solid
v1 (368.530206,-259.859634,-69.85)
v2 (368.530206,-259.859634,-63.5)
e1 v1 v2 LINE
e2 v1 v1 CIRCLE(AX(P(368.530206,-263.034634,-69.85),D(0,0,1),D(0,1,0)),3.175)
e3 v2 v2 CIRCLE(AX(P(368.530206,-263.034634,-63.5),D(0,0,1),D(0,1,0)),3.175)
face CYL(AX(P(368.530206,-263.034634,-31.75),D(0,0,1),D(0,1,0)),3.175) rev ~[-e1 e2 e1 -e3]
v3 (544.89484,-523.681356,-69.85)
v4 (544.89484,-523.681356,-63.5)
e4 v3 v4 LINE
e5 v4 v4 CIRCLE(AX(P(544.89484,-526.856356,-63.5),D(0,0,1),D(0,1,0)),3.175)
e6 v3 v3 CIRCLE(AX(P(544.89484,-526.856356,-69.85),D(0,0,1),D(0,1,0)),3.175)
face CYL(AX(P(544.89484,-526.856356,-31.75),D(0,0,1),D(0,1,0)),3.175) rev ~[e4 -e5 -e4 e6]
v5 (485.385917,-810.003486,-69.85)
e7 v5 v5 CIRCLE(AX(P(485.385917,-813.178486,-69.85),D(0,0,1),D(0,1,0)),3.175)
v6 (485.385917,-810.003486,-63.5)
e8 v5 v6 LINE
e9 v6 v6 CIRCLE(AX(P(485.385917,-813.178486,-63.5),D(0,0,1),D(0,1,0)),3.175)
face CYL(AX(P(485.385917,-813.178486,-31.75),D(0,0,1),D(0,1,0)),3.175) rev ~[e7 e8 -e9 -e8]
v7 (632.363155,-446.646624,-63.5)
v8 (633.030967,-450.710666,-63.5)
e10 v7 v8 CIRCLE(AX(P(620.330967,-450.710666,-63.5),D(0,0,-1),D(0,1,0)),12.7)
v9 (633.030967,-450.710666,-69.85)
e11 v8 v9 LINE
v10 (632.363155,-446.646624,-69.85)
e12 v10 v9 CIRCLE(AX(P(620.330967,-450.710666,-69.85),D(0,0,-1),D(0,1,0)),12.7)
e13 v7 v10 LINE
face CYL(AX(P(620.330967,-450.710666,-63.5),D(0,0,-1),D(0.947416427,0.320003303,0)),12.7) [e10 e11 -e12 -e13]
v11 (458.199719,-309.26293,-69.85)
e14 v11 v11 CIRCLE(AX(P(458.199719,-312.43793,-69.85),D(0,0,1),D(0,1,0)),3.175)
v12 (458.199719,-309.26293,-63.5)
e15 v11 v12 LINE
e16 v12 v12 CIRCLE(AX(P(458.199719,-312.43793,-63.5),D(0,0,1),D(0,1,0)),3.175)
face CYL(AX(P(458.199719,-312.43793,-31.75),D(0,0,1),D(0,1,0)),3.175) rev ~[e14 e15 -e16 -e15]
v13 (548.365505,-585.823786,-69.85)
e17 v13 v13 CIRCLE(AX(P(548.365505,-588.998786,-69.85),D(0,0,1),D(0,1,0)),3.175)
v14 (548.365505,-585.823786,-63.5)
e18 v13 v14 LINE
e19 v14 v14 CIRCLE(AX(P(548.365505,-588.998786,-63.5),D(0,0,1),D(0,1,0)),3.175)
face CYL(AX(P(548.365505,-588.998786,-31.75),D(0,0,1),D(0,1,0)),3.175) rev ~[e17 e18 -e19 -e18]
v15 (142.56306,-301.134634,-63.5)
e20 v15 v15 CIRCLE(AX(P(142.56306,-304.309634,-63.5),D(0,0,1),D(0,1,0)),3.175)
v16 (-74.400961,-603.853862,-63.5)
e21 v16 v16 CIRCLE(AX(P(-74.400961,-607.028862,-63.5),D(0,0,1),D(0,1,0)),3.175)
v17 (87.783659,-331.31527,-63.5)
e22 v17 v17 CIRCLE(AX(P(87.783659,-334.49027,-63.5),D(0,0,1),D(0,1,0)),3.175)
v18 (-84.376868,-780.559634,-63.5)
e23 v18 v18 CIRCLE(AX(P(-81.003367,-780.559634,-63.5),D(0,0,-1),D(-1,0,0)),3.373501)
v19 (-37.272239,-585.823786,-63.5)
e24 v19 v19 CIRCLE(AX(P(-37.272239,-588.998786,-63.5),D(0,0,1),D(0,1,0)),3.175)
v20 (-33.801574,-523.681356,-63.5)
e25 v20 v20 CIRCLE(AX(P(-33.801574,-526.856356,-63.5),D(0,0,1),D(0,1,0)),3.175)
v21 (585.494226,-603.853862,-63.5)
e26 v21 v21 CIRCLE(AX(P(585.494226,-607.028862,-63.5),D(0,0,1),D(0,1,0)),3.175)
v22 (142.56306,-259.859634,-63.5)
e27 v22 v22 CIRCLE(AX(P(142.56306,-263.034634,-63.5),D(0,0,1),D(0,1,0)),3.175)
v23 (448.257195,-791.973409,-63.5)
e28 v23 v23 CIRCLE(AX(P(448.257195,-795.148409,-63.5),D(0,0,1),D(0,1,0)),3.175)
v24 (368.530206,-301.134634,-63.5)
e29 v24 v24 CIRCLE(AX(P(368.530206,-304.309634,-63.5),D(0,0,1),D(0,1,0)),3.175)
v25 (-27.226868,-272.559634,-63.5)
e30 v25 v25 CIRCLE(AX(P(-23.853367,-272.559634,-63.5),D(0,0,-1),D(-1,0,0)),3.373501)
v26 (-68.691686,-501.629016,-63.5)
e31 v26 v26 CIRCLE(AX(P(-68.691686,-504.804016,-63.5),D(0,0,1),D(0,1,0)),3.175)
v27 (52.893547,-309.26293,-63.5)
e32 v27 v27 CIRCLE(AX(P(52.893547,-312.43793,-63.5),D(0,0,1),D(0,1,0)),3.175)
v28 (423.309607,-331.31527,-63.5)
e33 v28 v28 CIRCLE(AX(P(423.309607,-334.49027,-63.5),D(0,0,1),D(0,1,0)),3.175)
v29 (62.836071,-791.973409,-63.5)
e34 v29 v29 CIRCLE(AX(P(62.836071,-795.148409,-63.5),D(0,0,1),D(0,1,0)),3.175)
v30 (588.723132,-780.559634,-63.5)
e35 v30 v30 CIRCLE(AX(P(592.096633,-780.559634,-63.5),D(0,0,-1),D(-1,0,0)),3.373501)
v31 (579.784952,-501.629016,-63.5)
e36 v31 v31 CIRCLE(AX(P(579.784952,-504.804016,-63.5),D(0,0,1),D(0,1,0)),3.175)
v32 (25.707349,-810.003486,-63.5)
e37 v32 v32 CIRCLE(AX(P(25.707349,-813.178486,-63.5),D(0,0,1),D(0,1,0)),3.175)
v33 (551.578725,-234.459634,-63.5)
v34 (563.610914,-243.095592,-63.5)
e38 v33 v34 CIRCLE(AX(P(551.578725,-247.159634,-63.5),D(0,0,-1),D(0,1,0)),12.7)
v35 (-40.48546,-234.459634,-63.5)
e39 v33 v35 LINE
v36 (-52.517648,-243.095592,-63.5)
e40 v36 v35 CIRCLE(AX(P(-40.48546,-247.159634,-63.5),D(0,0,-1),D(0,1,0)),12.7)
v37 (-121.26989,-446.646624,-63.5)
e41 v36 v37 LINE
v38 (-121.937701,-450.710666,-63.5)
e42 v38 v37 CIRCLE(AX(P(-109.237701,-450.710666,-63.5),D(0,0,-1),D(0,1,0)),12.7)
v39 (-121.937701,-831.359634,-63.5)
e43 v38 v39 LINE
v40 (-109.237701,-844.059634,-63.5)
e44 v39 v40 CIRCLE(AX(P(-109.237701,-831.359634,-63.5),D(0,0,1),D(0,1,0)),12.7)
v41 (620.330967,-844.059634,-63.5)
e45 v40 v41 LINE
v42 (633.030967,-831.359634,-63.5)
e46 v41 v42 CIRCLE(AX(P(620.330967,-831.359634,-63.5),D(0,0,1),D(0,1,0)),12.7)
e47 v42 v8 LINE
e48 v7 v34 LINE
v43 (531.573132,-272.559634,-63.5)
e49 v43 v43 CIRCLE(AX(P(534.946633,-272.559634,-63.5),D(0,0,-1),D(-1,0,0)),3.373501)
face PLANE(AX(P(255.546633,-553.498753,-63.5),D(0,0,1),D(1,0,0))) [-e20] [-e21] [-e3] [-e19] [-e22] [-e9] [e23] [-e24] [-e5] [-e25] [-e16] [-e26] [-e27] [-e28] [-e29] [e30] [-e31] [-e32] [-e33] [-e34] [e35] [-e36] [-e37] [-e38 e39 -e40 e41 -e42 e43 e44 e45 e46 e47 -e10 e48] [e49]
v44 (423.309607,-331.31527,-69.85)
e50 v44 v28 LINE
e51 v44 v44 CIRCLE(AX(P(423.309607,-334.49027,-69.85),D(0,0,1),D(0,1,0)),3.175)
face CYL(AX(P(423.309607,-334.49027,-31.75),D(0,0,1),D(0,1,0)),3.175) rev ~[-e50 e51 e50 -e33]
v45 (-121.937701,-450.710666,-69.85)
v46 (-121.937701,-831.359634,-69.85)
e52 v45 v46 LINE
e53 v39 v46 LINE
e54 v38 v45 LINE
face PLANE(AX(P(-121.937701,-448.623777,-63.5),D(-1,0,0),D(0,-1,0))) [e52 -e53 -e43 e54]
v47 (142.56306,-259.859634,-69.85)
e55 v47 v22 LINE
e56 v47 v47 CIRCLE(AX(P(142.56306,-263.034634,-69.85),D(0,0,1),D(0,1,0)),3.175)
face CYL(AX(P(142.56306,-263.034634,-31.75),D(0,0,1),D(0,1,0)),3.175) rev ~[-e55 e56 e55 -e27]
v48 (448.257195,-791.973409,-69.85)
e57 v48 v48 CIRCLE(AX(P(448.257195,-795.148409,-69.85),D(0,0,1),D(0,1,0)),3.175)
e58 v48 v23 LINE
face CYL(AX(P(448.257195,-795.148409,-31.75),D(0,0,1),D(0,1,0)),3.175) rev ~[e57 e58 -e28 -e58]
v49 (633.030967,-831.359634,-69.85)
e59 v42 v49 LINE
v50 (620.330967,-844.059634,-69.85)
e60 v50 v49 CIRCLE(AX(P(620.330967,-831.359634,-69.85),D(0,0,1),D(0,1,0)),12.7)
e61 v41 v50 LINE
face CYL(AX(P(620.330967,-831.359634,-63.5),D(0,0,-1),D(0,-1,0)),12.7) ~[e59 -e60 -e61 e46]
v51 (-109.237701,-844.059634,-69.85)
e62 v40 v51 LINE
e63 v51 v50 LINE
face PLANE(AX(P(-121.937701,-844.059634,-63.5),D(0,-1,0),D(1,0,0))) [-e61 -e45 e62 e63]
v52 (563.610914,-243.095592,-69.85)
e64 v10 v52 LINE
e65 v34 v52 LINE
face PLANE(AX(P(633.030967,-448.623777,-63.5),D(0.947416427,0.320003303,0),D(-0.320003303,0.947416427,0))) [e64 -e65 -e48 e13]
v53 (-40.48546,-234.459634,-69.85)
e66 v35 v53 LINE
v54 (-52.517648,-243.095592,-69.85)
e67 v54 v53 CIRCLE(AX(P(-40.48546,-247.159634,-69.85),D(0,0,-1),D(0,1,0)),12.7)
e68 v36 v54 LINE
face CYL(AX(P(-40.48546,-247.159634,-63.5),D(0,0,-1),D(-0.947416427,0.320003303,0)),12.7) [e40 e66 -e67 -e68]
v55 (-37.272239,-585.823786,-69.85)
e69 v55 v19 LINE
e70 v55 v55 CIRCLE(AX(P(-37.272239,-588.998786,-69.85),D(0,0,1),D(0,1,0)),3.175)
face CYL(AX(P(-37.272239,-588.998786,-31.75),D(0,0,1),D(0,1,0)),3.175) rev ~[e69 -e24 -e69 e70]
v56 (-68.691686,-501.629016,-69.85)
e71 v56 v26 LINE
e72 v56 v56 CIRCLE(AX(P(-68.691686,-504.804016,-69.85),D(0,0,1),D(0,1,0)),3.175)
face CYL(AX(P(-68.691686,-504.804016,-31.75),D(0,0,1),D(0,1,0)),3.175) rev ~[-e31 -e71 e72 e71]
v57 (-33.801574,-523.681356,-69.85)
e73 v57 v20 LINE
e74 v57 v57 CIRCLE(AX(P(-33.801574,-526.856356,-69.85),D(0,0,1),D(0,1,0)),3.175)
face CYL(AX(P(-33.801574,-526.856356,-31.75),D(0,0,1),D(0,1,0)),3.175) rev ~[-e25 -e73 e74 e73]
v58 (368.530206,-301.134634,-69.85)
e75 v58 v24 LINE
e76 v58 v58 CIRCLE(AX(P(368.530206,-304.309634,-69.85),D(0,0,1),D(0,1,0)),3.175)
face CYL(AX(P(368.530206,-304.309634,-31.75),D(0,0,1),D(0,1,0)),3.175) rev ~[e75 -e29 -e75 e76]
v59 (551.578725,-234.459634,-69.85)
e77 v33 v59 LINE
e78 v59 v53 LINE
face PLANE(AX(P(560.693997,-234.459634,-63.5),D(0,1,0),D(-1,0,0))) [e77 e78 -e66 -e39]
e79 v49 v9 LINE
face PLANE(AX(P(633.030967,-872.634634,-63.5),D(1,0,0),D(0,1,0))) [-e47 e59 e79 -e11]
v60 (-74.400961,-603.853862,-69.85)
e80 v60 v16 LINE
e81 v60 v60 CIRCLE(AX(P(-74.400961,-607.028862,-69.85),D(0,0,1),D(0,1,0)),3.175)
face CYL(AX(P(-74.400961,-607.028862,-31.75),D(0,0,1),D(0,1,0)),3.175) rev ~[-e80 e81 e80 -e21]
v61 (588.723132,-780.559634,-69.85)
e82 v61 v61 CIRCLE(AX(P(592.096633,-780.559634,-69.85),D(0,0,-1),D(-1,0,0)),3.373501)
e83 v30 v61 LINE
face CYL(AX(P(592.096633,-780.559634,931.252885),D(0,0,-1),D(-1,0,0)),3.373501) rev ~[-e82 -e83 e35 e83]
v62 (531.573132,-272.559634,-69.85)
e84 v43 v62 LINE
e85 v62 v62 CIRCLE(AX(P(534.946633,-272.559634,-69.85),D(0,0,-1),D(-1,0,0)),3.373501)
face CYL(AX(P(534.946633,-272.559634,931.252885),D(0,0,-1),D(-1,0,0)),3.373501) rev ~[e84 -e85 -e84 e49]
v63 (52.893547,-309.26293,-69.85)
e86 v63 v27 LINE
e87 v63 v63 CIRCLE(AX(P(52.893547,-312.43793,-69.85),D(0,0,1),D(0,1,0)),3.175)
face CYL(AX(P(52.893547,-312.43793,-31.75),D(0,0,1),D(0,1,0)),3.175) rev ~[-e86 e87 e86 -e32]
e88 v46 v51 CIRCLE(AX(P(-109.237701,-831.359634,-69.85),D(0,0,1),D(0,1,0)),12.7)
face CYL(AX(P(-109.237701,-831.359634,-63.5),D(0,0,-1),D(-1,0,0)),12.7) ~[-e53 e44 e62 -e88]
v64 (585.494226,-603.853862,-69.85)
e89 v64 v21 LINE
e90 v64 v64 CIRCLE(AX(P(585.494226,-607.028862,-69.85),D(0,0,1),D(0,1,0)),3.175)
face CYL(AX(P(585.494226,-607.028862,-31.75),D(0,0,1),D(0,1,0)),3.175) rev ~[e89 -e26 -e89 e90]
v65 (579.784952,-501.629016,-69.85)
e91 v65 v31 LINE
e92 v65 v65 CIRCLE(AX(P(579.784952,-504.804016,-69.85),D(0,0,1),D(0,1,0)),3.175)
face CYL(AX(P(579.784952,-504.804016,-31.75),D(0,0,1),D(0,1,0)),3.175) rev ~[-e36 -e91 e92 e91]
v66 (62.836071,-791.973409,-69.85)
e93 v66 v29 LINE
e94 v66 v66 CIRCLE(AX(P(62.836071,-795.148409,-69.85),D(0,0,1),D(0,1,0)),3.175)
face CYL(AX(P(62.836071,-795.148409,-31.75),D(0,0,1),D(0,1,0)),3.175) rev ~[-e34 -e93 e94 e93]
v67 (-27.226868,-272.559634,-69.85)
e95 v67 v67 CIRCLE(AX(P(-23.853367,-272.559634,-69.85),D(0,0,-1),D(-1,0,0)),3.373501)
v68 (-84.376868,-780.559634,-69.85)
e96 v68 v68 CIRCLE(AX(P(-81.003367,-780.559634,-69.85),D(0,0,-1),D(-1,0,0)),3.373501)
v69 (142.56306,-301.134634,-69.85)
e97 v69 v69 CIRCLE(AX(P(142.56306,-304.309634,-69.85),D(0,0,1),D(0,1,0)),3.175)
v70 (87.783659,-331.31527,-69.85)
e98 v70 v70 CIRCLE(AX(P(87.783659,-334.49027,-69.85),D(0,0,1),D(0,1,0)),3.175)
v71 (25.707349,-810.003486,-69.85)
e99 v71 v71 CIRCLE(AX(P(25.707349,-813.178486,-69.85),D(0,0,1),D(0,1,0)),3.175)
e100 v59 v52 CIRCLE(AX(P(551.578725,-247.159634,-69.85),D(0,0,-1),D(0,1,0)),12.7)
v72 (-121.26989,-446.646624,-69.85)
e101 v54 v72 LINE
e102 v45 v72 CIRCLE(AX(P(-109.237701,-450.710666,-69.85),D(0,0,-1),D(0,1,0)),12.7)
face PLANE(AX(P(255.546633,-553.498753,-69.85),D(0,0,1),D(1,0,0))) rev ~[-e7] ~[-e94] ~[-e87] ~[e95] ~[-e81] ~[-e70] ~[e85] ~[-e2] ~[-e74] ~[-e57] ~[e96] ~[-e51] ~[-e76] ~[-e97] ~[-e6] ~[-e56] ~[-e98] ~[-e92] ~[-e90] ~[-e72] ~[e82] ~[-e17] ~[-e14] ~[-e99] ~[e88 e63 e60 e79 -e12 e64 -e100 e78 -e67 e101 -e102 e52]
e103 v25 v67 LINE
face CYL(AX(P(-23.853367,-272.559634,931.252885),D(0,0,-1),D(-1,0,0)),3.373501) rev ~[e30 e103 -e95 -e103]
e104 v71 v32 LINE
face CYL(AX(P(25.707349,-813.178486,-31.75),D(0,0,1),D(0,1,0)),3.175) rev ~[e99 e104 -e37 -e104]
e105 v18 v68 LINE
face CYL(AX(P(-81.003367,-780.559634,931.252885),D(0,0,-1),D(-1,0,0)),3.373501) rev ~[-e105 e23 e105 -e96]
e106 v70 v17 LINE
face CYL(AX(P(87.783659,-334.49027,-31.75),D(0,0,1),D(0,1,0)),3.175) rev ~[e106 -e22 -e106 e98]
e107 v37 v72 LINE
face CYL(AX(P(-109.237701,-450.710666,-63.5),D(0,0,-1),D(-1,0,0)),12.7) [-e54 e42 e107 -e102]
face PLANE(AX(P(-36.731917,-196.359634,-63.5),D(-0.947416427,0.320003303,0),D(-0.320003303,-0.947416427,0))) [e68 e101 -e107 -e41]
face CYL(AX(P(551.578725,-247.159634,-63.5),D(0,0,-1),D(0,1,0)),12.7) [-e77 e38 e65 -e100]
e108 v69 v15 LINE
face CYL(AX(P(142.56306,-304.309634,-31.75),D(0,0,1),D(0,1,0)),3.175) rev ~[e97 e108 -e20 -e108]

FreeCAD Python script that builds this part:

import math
import FreeCAD as App
import Part
import Sketcher

V = App.Vector
Q = App.Units.Quantity


def edges_at(feature, points):
    """Names of the edges that pass closest to the given points."""
    edges = feature.Shape.Edges
    near = lambda p: min(range(len(edges)), key=lambda i: edges[i].distToShape(Part.Vertex(*p))[0])
    return sorted({f"Edge{near(p) + 1}" for p in points})

doc = App.newDocument("Part")
body = doc.addObject("PartDesign::Body", "Body")

sketch1 = body.newObject("Sketcher::SketchObject", "Sketch")
sketch1.AttachmentSupport = (doc.getObject("XY_Plane"), [""])
sketch1.MapMode = "FlatFace"
sketch1.addGeometry([
    Part.LineSegment(V(383, 293, 0), V(129, 293, 0)),
    Part.LineSegment(V(129, 293, 0), V(-265, -873, 0)),
    Part.LineSegment(V(-265, -873, 0), V(776, -873, 0)),
    Part.LineSegment(V(776, -873, 0), V(383, 293, 0)),
    Part.Circle(V(705, -720, 0), V(0, 0, 1), 5),
    Part.LineSegment(V(667, -744, 0), V(659, -720, 0)),
    Part.ArcOfCircle(Part.Circle(V(671, -716, 0), V(0, 0, 1), 13), math.radians(19), math.radians(199)),
    Part.LineSegment(V(683, -712, 0), V(691, -736, 0)),
    Part.ArcOfCircle(Part.Circle(V(679, -740, 0), V(0, 0, 1), 13), math.radians(-161), math.radians(19)),
    Part.Circle(V(593, -835, 0), V(0, 0, 1), 5),
    Part.LineSegment(V(581, -791, 0), V(606, -791, 0)),
    Part.ArcOfCircle(Part.Circle(V(606, -804, 0), V(0, 0, 1), 13), math.radians(-90), math.radians(90)),
    Part.LineSegment(V(606, -817, 0), V(581, -817, 0)),
    Part.ArcOfCircle(Part.Circle(V(581, -804, 0), V(0, 0, 1), 13), math.radians(90), math.radians(270)),
    Part.Circle(V(593, -390, 0), V(0, 0, 1), 5),
    Part.LineSegment(V(556, -414, 0), V(548, -390, 0)),
    Part.ArcOfCircle(Part.Circle(V(560, -386, 0), V(0, 0, 1), 13), math.radians(19), math.radians(199)),
    Part.LineSegment(V(572, -382, 0), V(580, -406, 0)),
    Part.ArcOfCircle(Part.Circle(V(568, -410, 0), V(0, 0, 1), 13), math.radians(-161), math.radians(19)),
    Part.Circle(V(-82, -835, 0), V(0, 0, 1), 5),
    Part.LineSegment(V(-94, -791, 0), V(-69, -791, 0)),
    Part.ArcOfCircle(Part.Circle(V(-69, -804, 0), V(0, 0, 1), 13), math.radians(-90), math.radians(90)),
    Part.LineSegment(V(-69, -817, 0), V(-94, -817, 0)),
    Part.ArcOfCircle(Part.Circle(V(-94, -804, 0), V(0, 0, 1), 13), math.radians(90), math.radians(270)),
    Part.LineSegment(V(-180, -736, 0), V(-172, -712, 0)),
    Part.ArcOfCircle(Part.Circle(V(-160, -716, 0), V(0, 0, 1), 13), math.radians(-19), math.radians(161)),
    Part.LineSegment(V(-148, -720, 0), V(-156, -744, 0)),
    Part.ArcOfCircle(Part.Circle(V(-168, -740, 0), V(0, 0, 1), 13), math.radians(161), math.radians(341)),
    Part.Circle(V(-194, -720, 0), V(0, 0, 1), 5),
    Part.LineSegment(V(-69, -406, 0), V(-61, -382, 0)),
    Part.ArcOfCircle(Part.Circle(V(-49, -386, 0), V(0, 0, 1), 13), math.radians(-19), math.radians(161)),
    Part.LineSegment(V(-37, -390, 0), V(-45, -414, 0)),
    Part.ArcOfCircle(Part.Circle(V(-57, -410, 0), V(0, 0, 1), 13), math.radians(161), math.radians(341)),
    Part.Circle(V(-82, -390, 0), V(0, 0, 1), 5),
    Part.Circle(V(491, -88, 0), V(0, 0, 1), 5),
    Part.LineSegment(V(454, -113, 0), V(446, -88, 0)),
    Part.ArcOfCircle(Part.Circle(V(458, -84, 0), V(0, 0, 1), 13), math.radians(19), math.radians(199)),
    Part.LineSegment(V(470, -80, 0), V(478, -104, 0)),
    Part.ArcOfCircle(Part.Circle(V(466, -108, 0), V(0, 0, 1), 13), math.radians(-161), math.radians(19)),
    Part.Circle(V(397, 191, 0), V(0, 0, 1), 5),
    Part.LineSegment(V(359, 168, 0), V(351, 192, 0)),
    Part.ArcOfCircle(Part.Circle(V(363, 196, 0), V(0, 0, 1), 13), math.radians(19), math.radians(199)),
    Part.LineSegment(V(375, 200, 0), V(383, 176, 0)),
    Part.ArcOfCircle(Part.Circle(V(371, 172, 0), V(0, 0, 1), 13), math.radians(-161), math.radians(19)),
    Part.LineSegment(V(294, 254, 0), V(319, 254, 0)),
    Part.ArcOfCircle(Part.Circle(V(319, 241, 0), V(0, 0, 1), 13), math.radians(-90), math.radians(90)),
    Part.LineSegment(V(319, 229, 0), V(294, 229, 0)),
    Part.ArcOfCircle(Part.Circle(V(294, 241, 0), V(0, 0, 1), 13), math.radians(90), math.radians(270)),
    Part.Circle(V(306, 272, 0), V(0, 0, 1), 5),
    Part.LineSegment(V(33, -104, 0), V(41, -80, 0)),
    Part.ArcOfCircle(Part.Circle(V(53, -84, 0), V(0, 0, 1), 13), math.radians(-19), math.radians(161)),
    Part.LineSegment(V(65, -88, 0), V(57, -113, 0)),
    Part.ArcOfCircle(Part.Circle(V(45, -108, 0), V(0, 0, 1), 13), math.radians(161), math.radians(341)),
    Part.Circle(V(20, -88, 0), V(0, 0, 1), 5),
    Part.LineSegment(V(128, 176, 0), V(136, 200, 0)),
    Part.ArcOfCircle(Part.Circle(V(148, 196, 0), V(0, 0, 1), 13), math.radians(-19), math.radians(161)),
    Part.LineSegment(V(160, 192, 0), V(152, 168, 0)),
    Part.ArcOfCircle(Part.Circle(V(140, 172, 0), V(0, 0, 1), 13), math.radians(161), math.radians(341)),
    Part.LineSegment(V(192, 254, 0), V(218, 254, 0)),
    Part.ArcOfCircle(Part.Circle(V(218, 241, 0), V(0, 0, 1), 13), math.radians(-90), math.radians(90)),
    Part.LineSegment(V(218, 229, 0), V(192, 229, 0)),
    Part.ArcOfCircle(Part.Circle(V(192, 241, 0), V(0, 0, 1), 13), math.radians(90), math.radians(270)),
    Part.Circle(V(205, 272, 0), V(0, 0, 1), 5),
    Part.Circle(V(115, 192, 0), V(0, 0, 1), 5),
], False)
sketch1.addConstraint([
    Sketcher.Constraint("Coincident", 0, 2, 1, 1),
    Sketcher.Constraint("Coincident", 1, 2, 2, 1),
    Sketcher.Constraint("Coincident", 2, 2, 3, 1),
    Sketcher.Constraint("Coincident", 3, 2, 0, 1),
    Sketcher.Constraint("Tangent", 5, 2, 6, 2),
    Sketcher.Constraint("Tangent", 6, 1, 7, 1),
    Sketcher.Constraint("Tangent", 7, 2, 8, 2),
    Sketcher.Constraint("Tangent", 8, 1, 5, 1),
    Sketcher.Constraint("Tangent", 10, 2, 11, 2),
    Sketcher.Constraint("Tangent", 11, 1, 12, 1),
    Sketcher.Constraint("Tangent", 12, 2, 13, 2),
    Sketcher.Constraint("Tangent", 13, 1, 10, 1),
    Sketcher.Constraint("Tangent", 15, 2, 16, 2),
    Sketcher.Constraint("Tangent", 16, 1, 17, 1),
    Sketcher.Constraint("Tangent", 17, 2, 18, 2),
    Sketcher.Constraint("Tangent", 18, 1, 15, 1),
    Sketcher.Constraint("Tangent", 20, 2, 21, 2),
    Sketcher.Constraint("Tangent", 21, 1, 22, 1),
    Sketcher.Constraint("Tangent", 22, 2, 23, 2),
    Sketcher.Constraint("Tangent", 23, 1, 20, 1),
    Sketcher.Constraint("Tangent", 24, 2, 25, 2),
    Sketcher.Constraint("Tangent", 25, 1, 26, 1),
    Sketcher.Constraint("Tangent", 26, 2, 27, 2),
    Sketcher.Constraint("Tangent", 27, 1, 24, 1),
    Sketcher.Constraint("Tangent", 29, 2, 30, 2),
    Sketcher.Constraint("Tangent", 30, 1, 31, 1),
    Sketcher.Constraint("Tangent", 31, 2, 32, 2),
    Sketcher.Constraint("Tangent", 32, 1, 29, 1),
    Sketcher.Constraint("Tangent", 35, 2, 36, 2),
    Sketcher.Constraint("Tangent", 36, 1, 37, 1),
    Sketcher.Constraint("Tangent", 37, 2, 38, 2),
    Sketcher.Constraint("Tangent", 38, 1, 35, 1),
    Sketcher.Constraint("Tangent", 40, 2, 41, 2),
    Sketcher.Constraint("Tangent", 41, 1, 42, 1),
    Sketcher.Constraint("Tangent", 42, 2, 43, 2),
    Sketcher.Constraint("Tangent", 43, 1, 40, 1),
    Sketcher.Constraint("Tangent", 44, 2, 45, 2),
    Sketcher.Constraint("Tangent", 45, 1, 46, 1),
    Sketcher.Constraint("Tangent", 46, 2, 47, 2),
    Sketcher.Constraint("Tangent", 47, 1, 44, 1),
    Sketcher.Constraint("Tangent", 49, 2, 50, 2),
    Sketcher.Constraint("Tangent", 50, 1, 51, 1),
    Sketcher.Constraint("Tangent", 51, 2, 52, 2),
    Sketcher.Constraint("Tangent", 52, 1, 49, 1),
    Sketcher.Constraint("Tangent", 54, 2, 55, 2),
    Sketcher.Constraint("Tangent", 55, 1, 56, 1),
    Sketcher.Constraint("Tangent", 56, 2, 57, 2),
    Sketcher.Constraint("Tangent", 57, 1, 54, 1),
    Sketcher.Constraint("Tangent", 58, 2, 59, 2),
    Sketcher.Constraint("Tangent", 59, 1, 60, 1),
    Sketcher.Constraint("Tangent", 60, 2, 61, 2),
    Sketcher.Constraint("Tangent", 61, 1, 58, 1),
    Sketcher.Constraint("Horizontal", 0),
    Sketcher.Constraint("Horizontal", 2),
    Sketcher.Constraint("Horizontal", 10),
    Sketcher.Constraint("Horizontal", 12),
    Sketcher.Constraint("Horizontal", 20),
    Sketcher.Constraint("Horizontal", 22),
    Sketcher.Constraint("Horizontal", 44),
    Sketcher.Constraint("Horizontal", 46),
    Sketcher.Constraint("Horizontal", 58),
    Sketcher.Constraint("Horizontal", 60),
    Sketcher.Constraint("Equal", 6, 8),
    Sketcher.Constraint("Equal", 4, 9),
    Sketcher.Constraint("Equal", 8, 11),
    Sketcher.Constraint("Equal", 9, 14),
    Sketcher.Constraint("Equal", 13, 16),
    Sketcher.Constraint("Equal", 16, 18),
    Sketcher.Constraint("Equal", 14, 19),
    Sketcher.Constraint("Equal", 18, 21),
    Sketcher.Constraint("Equal", 23, 25),
    Sketcher.Constraint("Equal", 25, 27),
    Sketcher.Constraint("Equal", 19, 28),
    Sketcher.Constraint("Equal", 27, 30),
    Sketcher.Constraint("Equal", 30, 32),
    Sketcher.Constraint("Equal", 28, 33),
    Sketcher.Constraint("Equal", 33, 34),
    Sketcher.Constraint("Equal", 32, 36),
    Sketcher.Constraint("Equal", 36, 38),
    Sketcher.Constraint("Equal", 34, 39),
    Sketcher.Constraint("Equal", 38, 41),
    Sketcher.Constraint("Equal", 41, 43),
    Sketcher.Constraint("Equal", 43, 45),
    Sketcher.Constraint("Equal", 39, 48),
    Sketcher.Constraint("Equal", 47, 50),
    Sketcher.Constraint("Equal", 50, 52),
    Sketcher.Constraint("Equal", 48, 53),
    Sketcher.Constraint("Equal", 52, 55),
    Sketcher.Constraint("Equal", 55, 57),
    Sketcher.Constraint("Equal", 57, 59),
    Sketcher.Constraint("Equal", 53, 62),
    Sketcher.Constraint("Equal", 62, 63),
    Sketcher.Constraint("Parallel", 3, 5),
    Sketcher.Constraint("Parallel", 7, 15),
    Sketcher.Constraint("Parallel", 1, 24),
    Sketcher.Constraint("Parallel", 26, 29),
    Sketcher.Constraint("Parallel", 17, 35),
    Sketcher.Constraint("Parallel", 37, 40),
    Sketcher.Constraint("Parallel", 31, 49),
    Sketcher.Constraint("Parallel", 51, 54),
    Sketcher.Constraint("Horizontal", 9, 3, 19, 3),
    Sketcher.Constraint("Horizontal", 13, 3, 21, 3),
    Sketcher.Constraint("Horizontal", 6, 3, 25, 3),
    Sketcher.Constraint("Horizontal", 8, 3, 27, 3),
    Sketcher.Constraint("Horizontal", 4, 3, 28, 3),
    Sketcher.Constraint("Horizontal", 16, 3, 30, 3),
    Sketcher.Constraint("Horizontal", 18, 3, 32, 3),
    Sketcher.Constraint("Horizontal", 14, 3, 33, 3),
    Sketcher.Constraint("Horizontal", 36, 3, 50, 3),
    Sketcher.Constraint("Horizontal", 38, 3, 52, 3),
    Sketcher.Constraint("Horizontal", 34, 3, 53, 3),
    Sketcher.Constraint("Horizontal", 47, 3, 59, 3),
    Sketcher.Constraint("Horizontal", 48, 3, 62, 3),
    Sketcher.Constraint("Vertical", 9, 3, 14, 3),
    Sketcher.Constraint("Vertical", 19, 3, 33, 3),
    Sketcher.Constraint("Equal", 12, 20),
    Sketcher.Constraint("Equal", 22, 44),
    Sketcher.Constraint("Equal", 46, 58),
    Sketcher.Constraint("Equal", 1, 3),
    Sketcher.Constraint("Equal", 7, 15),
    Sketcher.Constraint("Equal", 31, 35),
    Sketcher.Constraint("Equal", 37, 40),
    Sketcher.Constraint("Equal", 51, 54),
    Sketcher.Constraint("Radius", 6, Q("0.5 in")),
    Sketcher.Constraint("DistanceX", 0, 2, 0, 1, Q("10 in")),
    Sketcher.Constraint("DistanceX", 2, 1, 2, 2, Q("41 in")),
    Sketcher.Constraint("DistanceX", 10, 1, 10, 2, Q("1 in")),
    Sketcher.Constraint("Distance", 5, Q("1 in")),
    Sketcher.Constraint("Diameter", 4, Q("0.421875 in")),
    Sketcher.Constraint("Distance", 1, Q("48.437 in")),
    Sketcher.Constraint("DistanceY", 38, 1, -1, 1, Q("4.4302999 in")),
    Sketcher.Constraint("DistanceX", -1, 1, 43, 3, 371.097199),
    Sketcher.Constraint("DistanceX", -1, 1, 63, 3, 114.659199),
    Sketcher.Constraint("DistanceY", -1, 1, 63, 3, 192.3252),
    Sketcher.Constraint("DistanceX", -1, 1, 6, 3, 671.17272),
    Sketcher.Constraint("DistanceY", 6, 3, -1, 1, 716.32765),
    Sketcher.Constraint("DistanceX", -1, 1, 9, 3, 593.220051),
    Sketcher.Constraint("DistanceX", -1, 1, 11, 3, 605.920051),
    Sketcher.Constraint("DistanceX", -1, 1, 16, 3, 559.705091),
    Sketcher.Constraint("DistanceX", 27, 3, -1, 1, 168.207538),
    Sketcher.Constraint("DistanceX", 32, 3, -1, 1, 56.739909),
    Sketcher.Constraint("DistanceX", -1, 1, 34, 3, 491.127459),
    Sketcher.Constraint("DistanceX", -1, 1, 36, 3, 457.73062),
    Sketcher.Constraint("DistanceY", -1, 1, 41, 3, 196.154049),
    Sketcher.Constraint("DistanceY", -1, 1, 45, 3, 241.247159),
    Sketcher.Constraint("DistanceY", -1, 1, 48, 3, 271.727159),
    Sketcher.Constraint("DistanceX", -1, 1, 52, 3, 45.234562),
    Sketcher.Constraint("DistanceY", -1, 1, 55, 3, 196.110751),
    Sketcher.Constraint("DistanceY", 17, 2, -1, 1, 406.311821),
    Sketcher.Constraint("DistanceX", -1, 1, 56, 2, 152.013631),
    Sketcher.Constraint("DistanceX", -1, 1, 4, 3, 704.664062),
    Sketcher.Constraint("DistanceY", 4, 3, -1, 1, 720.234634),
    Sketcher.Constraint("DistanceY", 9, 3, -1, 1, 834.534634),
    Sketcher.Constraint("DistanceY", 11, 3, -1, 1, 804.054634),
    Sketcher.Constraint("DistanceY", 14, 3, -1, 1, 390.288393),
    Sketcher.Constraint("DistanceX", 19, 3, -1, 1, 82.126785),
    Sketcher.Constraint("DistanceX", 21, 3, -1, 1, 68.831734),
    Sketcher.Constraint("DistanceX", 28, 3, -1, 1, 193.570796),
    Sketcher.Constraint("DistanceY", 34, 3, -1, 1, 88.028393),
    Sketcher.Constraint("DistanceX", -1, 1, 39, 3, 396.756156),
    Sketcher.Constraint("DistanceY", -1, 1, 39, 3, 191.371607),
    Sketcher.Constraint("DistanceX", -1, 1, 45, 3, 319.046633),
    Sketcher.Constraint("DistanceX", -1, 1, 48, 3, 306.346633),
    Sketcher.Constraint("DistanceX", -1, 1, 53, 3, 19.965807),
    Sketcher.Constraint("DistanceX", -1, 1, 59, 3, 217.513516),
    Sketcher.Constraint("DistanceX", -1, 1, 62, 3, 204.746633),
    Sketcher.Constraint("DistanceX", -1, 1, 0, 2, 128.546633),
    Sketcher.Constraint("DistanceY", -1, 1, 0, 2, 292.971607),
])
pad1 = body.newObject("PartDesign::Pad", "Pad")
pad1.Profile = sketch1
pad1.Length = Q("0.25 in")
doc.recompute()

fillet = body.newObject("PartDesign::Fillet", "Fillet")
fillet.Base = (pad1, edges_at(pad1, [
    (128.547, 292.972, 3.175),
    (382.547, 292.972, 3.175),
    (776.247, -872.635, 3.175),
    (-265.153, -872.635, 3.175),
]))
fillet.Radius = Q("0.25 in")

sketch2 = body.newObject("Sketcher::SketchObject", "Sketch001")
sketch2.AttachmentSupport = (doc.getObject("XY_Plane"), [""])
sketch2.MapMode = "FlatFace"
sketch2.AttachmentOffset = App.Placement(V(0, 0, 0.25 * 25.4), App.Rotation())
sketch2.addGeometry([
    Part.LineSegment(V(68, -842, 0), V(92, -808, 0)),
    Part.ArcOfCircle(Part.Circle(V(256, -574, 0), V(0, 0, 1), 286), math.radians(-55), math.radians(235)),
    Part.LineSegment(V(419, -808, 0), V(443, -842, 0)),
    Part.ArcOfCircle(Part.Circle(V(256, -574, 0), V(0, 0, 1), 327), math.radians(-55), math.radians(235)),
], False)
sketch2.addConstraint([
    Sketcher.Constraint("Coincident", 0, 2, 1, 2),
    Sketcher.Constraint("Coincident", 1, 1, 2, 1),
    Sketcher.Constraint("Coincident", 2, 2, 3, 1),
    Sketcher.Constraint("Coincident", 3, 2, 0, 1),
    Sketcher.Constraint("Coincident", 3, 3, 1, 3),
    Sketcher.Constraint("Horizontal", 0, 2, 1, 1),
    Sketcher.Constraint("Horizontal", 2, 2, 3, 2),
    Sketcher.Constraint("Radius", 1, Q("11.25 in")),
    Sketcher.Constraint("Angle", 0, Q("55 deg")),
    Sketcher.Constraint("Radius", 3, Q("12.875 in")),
    Sketcher.Constraint("DistanceX", -1, 1, 1, 1, 419.4461),
    Sketcher.Constraint("DistanceX", -1, 1, 3, 2, 67.972799),
    Sketcher.Constraint("DistanceY", 0, 2, -1, 1, 808.257331),
])
pocket1 = body.newObject("PartDesign::Pocket", "Pocket")
pocket1.Profile = sketch2
pocket1.Type = "ThroughAll"
body2 = doc.addObject("PartDesign::Body", "Body001")

sketch3 = body2.newObject("Sketcher::SketchObject", "Sketch002")
sketch3.AttachmentSupport = (doc.getObject("XY_Plane001"), [""])
sketch3.MapMode = "FlatFace"
sketch3.AttachmentOffset = App.Placement(V(0, 0, -2.5 * 25.4), App.Rotation())
sketch3.addGeometry([
    Part.LineSegment(V(633, -873, 0), V(-122, -873, 0)),
    Part.LineSegment(V(-122, -873, 0), V(-122, -449, 0)),
    Part.LineSegment(V(-122, -449, 0), V(-37, -196, 0)),
    Part.LineSegment(V(-37, -196, 0), V(548, -196, 0)),
    Part.LineSegment(V(548, -196, 0), V(633, -449, 0)),
    Part.LineSegment(V(633, -449, 0), V(633, -873, 0)),
], False)
sketch3.addConstraint([
    Sketcher.Constraint("Coincident", 0, 2, 1, 1),
    Sketcher.Constraint("Coincident", 1, 2, 2, 1),
    Sketcher.Constraint("Coincident", 2, 2, 3, 1),
    Sketcher.Constraint("Coincident", 3, 2, 4, 1),
    Sketcher.Constraint("Coincident", 4, 2, 5, 1),
    Sketcher.Constraint("Coincident", 5, 2, 0, 1),
    Sketcher.Constraint("Horizontal", 0),
    Sketcher.Constraint("Vertical", 1),
    Sketcher.Constraint("Horizontal", 3),
    Sketcher.Constraint("Vertical", 5),
    Sketcher.Constraint("Horizontal", 1, 2, 4, 2),
    Sketcher.Constraint("Equal", 2, 4),
    Sketcher.Constraint("DistanceY", 0, 2, 2, 2, Q("26.625 in")),
    Sketcher.Constraint("DistanceX", 3, 1, 3, 2, 584.5571),
    Sketcher.Constraint("DistanceX", 0, 2, -1, 1, 121.937701),
    Sketcher.Constraint("DistanceX", 0, 2, 0, 1, 754.968668),
    Sketcher.Constraint("DistanceY", 1, 1, 1, 2, 424.010857),
    Sketcher.Constraint("DistanceY", 0, 2, -1, 1, 872.634634),
])
pad2 = body2.newObject("PartDesign::Pad", "Pad001")
pad2.Profile = sketch3
pad2.Length = Q("0.25 in")
pad2.Reversed = True

sketch4 = body2.newObject("Sketcher::SketchObject", "Sketch003")
sketch4.AttachmentSupport = (doc.getObject("YZ_Plane001"), [""])
sketch4.MapMode = "FlatFace"
sketch4.AttachmentOffset = App.Placement(V(0, 0, 25.707349), App.Rotation())
sketch4.addGeometry([
    Part.LineSegment(V(-813.2, 6.3, 0), V(-813.2, -69.8, 0)),
    Part.LineSegment(V(-813.2, -69.8, 0), V(-810, -69.8, 0)),
    Part.LineSegment(V(-810, -69.8, 0), V(-810, 6.3, 0)),
    Part.LineSegment(V(-810, 6.3, 0), V(-813.2, 6.3, 0)),
], False)
sketch4.addGeometry(Part.LineSegment(V(-813.2, -69.8, 0), V(-813.2, 6.3, 0)), True)
sketch4.addConstraint([
    Sketcher.Constraint("Coincident", 0, 2, 1, 1),
    Sketcher.Constraint("Coincident", 1, 2, 2, 1),
    Sketcher.Constraint("Coincident", 2, 2, 3, 1),
    Sketcher.Constraint("Coincident", 3, 2, 0, 1),
    Sketcher.Constraint("Vertical", 0),
    Sketcher.Constraint("Horizontal", 1),
    Sketcher.Constraint("Vertical", 2),
    Sketcher.Constraint("Horizontal", 3),
    Sketcher.Constraint("Vertical", 4),
    Sketcher.Constraint("Coincident", 4, 1, 0, 2),
    Sketcher.Constraint("Horizontal", 2, 2, 4, 2),
    Sketcher.Constraint("DistanceY", 0, 2, 0, 1, Q("3 in")),
    Sketcher.Constraint("DistanceX", 1, 1, 1, 2, Q("0.125 in")),
    Sketcher.Constraint("DistanceY", 0, 2, -1, 1, Q("2.75 in")),
    Sketcher.Constraint("DistanceX", 0, 2, -1, 1, 813.178486),
])
groove = body2.newObject("PartDesign::Groove", "Groove")
groove.Profile = sketch4
groove.ReferenceAxis = (sketch4, ["Axis0"])
groove.Angle = 360
doc.recompute()

linearpattern = body2.newObject("PartDesign::LinearPattern", "LinearPattern")
linearpattern.Originals = [groove]
linearpattern.Direction = (doc.getObject("X_Axis001"), [""])
linearpattern.Mode = "offset"
linearpattern.Offset = 459.678568
linearpattern.Occurrences = 2
body2.Tip = linearpattern
doc.recompute()

datumline = body2.newObject("PartDesign::Line", "DatumLine")
datumline.Placement = App.Placement(V(0, 0, 0), App.Rotation(V(0, 0, 1), V(0.938390769, 0.34557599, 0)))
linearpattern2 = body2.newObject("PartDesign::LinearPattern", "LinearPattern001")
linearpattern2.Originals = [groove]
linearpattern2.Direction = (datumline, [""])
linearpattern2.Mode = "offset"
linearpattern2.Offset = 596.539199
linearpattern2.Occurrences = 2
body2.Tip = linearpattern2
doc.recompute()

datumline2 = body2.newObject("PartDesign::Line", "DatumLine001")
datumline2.Placement = App.Placement(V(0, 0, 0), App.Rotation(V(0, 0, 1), V(0.919028261, 0.394191649, 0)))
linearpattern3 = body2.newObject("PartDesign::LinearPattern", "LinearPattern002")
linearpattern3.Originals = [groove]
linearpattern3.Direction = (datumline2, [""])
linearpattern3.Mode = "offset"
linearpattern3.Offset = 568.707382
linearpattern3.Occurrences = 2
body2.Tip = linearpattern3
doc.recompute()

datumline3 = body2.newObject("PartDesign::Line", "DatumLine002")
datumline3.Placement = App.Placement(V(0, 0, 0), App.Rotation(V(0, 0, 1), V(0.999090889, 0.042630912, 0)))
linearpattern4 = body2.newObject("PartDesign::LinearPattern", "LinearPattern003")
linearpattern4.Originals = [groove]
linearpattern4.Direction = (datumline3, [""])
linearpattern4.Mode = "offset"
linearpattern4.Offset = 422.93434
linearpattern4.Occurrences = 2
body2.Tip = linearpattern4
doc.recompute()

datumline4 = body2.newObject("PartDesign::Line", "DatumLine003")
datumline4.Placement = App.Placement(V(0, 0, 0), App.Rotation(V(0, 0, 1), V(0.875667656, 0.482914232, 0)))
linearpattern5 = body2.newObject("PartDesign::LinearPattern", "LinearPattern004")
linearpattern5.Originals = [groove]
linearpattern5.Direction = (datumline4, [""])
linearpattern5.Mode = "offset"
linearpattern5.Offset = 592.904725
linearpattern5.Occurrences = 2
body2.Tip = linearpattern5
doc.recompute()

datumline5 = body2.newObject("PartDesign::Line", "DatumLine004")
datumline5.Placement = App.Placement(V(0, 0, 0), App.Rotation(V(0, 0, 1), V(0.873786408, 0.486309895, 0)))
linearpattern6 = body2.newObject("PartDesign::LinearPattern", "LinearPattern005")
linearpattern6.Originals = [groove]
linearpattern6.Direction = (datumline5, [""])
linearpattern6.Mode = "offset"
linearpattern6.Offset = 634.111034
linearpattern6.Occurrences = 2
body2.Tip = linearpattern6
doc.recompute()

datumline6 = body2.newObject("PartDesign::Line", "DatumLine005")
datumline6.Placement = App.Placement(V(0, 0, 0), App.Rotation(V(0, 0, 1), V(0.638946307, 0.769251336, 0)))
linearpattern7 = body2.newObject("PartDesign::LinearPattern", "LinearPattern006")
linearpattern7.Originals = [groove]
linearpattern7.Direction = (datumline6, [""])
linearpattern7.Mode = "offset"
linearpattern7.Offset = 622.278044
linearpattern7.Occurrences = 2
body2.Tip = linearpattern7
doc.recompute()

datumline7 = body2.newObject("PartDesign::Line", "DatumLine006")
datumline7.Placement = App.Placement(V(0, 0, 0), App.Rotation(V(0, 0, 1), V(0.653649836, 0.756797127, 0)))
linearpattern8 = body2.newObject("PartDesign::LinearPattern", "LinearPattern007")
linearpattern8.Originals = [groove]
linearpattern8.Direction = (datumline7, [""])
linearpattern8.Mode = "offset"
linearpattern8.Offset = 661.657581
linearpattern8.Occurrences = 2
body2.Tip = linearpattern8
doc.recompute()

datumline8 = body2.newObject("PartDesign::Line", "DatumLine007")
datumline8.Placement = App.Placement(V(0, 0, 0), App.Rotation(V(0, 0, 1), V(0.528870204, 0.84870272, 0)))
linearpattern9 = body2.newObject("PartDesign::LinearPattern", "LinearPattern008")
linearpattern9.Originals = [groove]
linearpattern9.Direction = (datumline8, [""])
linearpattern9.Mode = "offset"
linearpattern9.Offset = 648.217378
linearpattern9.Occurrences = 2
body2.Tip = linearpattern9
doc.recompute()

datumline9 = body2.newObject("PartDesign::Line", "DatumLine008")
datumline9.Placement = App.Placement(V(0, 0, 0), App.Rotation(V(0, 0, 1), V(0.55872961, 0.82934988, 0)))
linearpattern10 = body2.newObject("PartDesign::LinearPattern", "LinearPattern009")
linearpattern10.Originals = [groove]
linearpattern10.Direction = (datumline9, [""])
linearpattern10.Mode = "offset"
linearpattern10.Offset = 613.575603
linearpattern10.Occurrences = 2
body2.Tip = linearpattern10
doc.recompute()

datumline10 = body2.newObject("PartDesign::Line", "DatumLine009")
datumline10.Placement = App.Placement(V(0, 0, 0), App.Rotation(V(0, 0, 1), V(0.223812744, 0.974632164, 0)))
linearpattern11 = body2.newObject("PartDesign::LinearPattern", "LinearPattern010")
linearpattern11.Originals = [groove]
linearpattern11.Direction = (datumline10, [""])
linearpattern11.Mode = "offset"
linearpattern11.Offset = 522.113748
linearpattern11.Occurrences = 2
body2.Tip = linearpattern11
doc.recompute()

datumline11 = body2.newObject("PartDesign::Line", "DatumLine010")
datumline11.Placement = App.Placement(V(0, 0, 0), App.Rotation(V(0, 0, 1), V(0.207773936, 0.978176871, 0)))
linearpattern12 = body2.newObject("PartDesign::LinearPattern", "LinearPattern011")
linearpattern12.Originals = [groove]
linearpattern12.Direction = (datumline11, [""])
linearpattern12.Mode = "offset"
linearpattern12.Offset = 562.417563
linearpattern12.Occurrences = 2
body2.Tip = linearpattern12
doc.recompute()

datumline12 = body2.newObject("PartDesign::Line", "DatumLine011")
datumline12.Placement = App.Placement(V(0, 0, 0), App.Rotation(V(0, 0, 1), V(0.054212144, 0.99852944, 0)))
linearpattern13 = body2.newObject("PartDesign::LinearPattern", "LinearPattern012")
linearpattern13.Originals = [groove]
linearpattern13.Direction = (datumline12, [""])
linearpattern13.Mode = "offset"
linearpattern13.Offset = 501.47801
linearpattern13.Occurrences = 2
body2.Tip = linearpattern13
doc.recompute()

datumline13 = body2.newObject("PartDesign::Line", "DatumLine012")
datumline13.Placement = App.Placement(V(0, 0, 0), App.Rotation(V(0, 0, 1), V(0.1286032, 0.991696131, 0)))
linearpattern14 = body2.newObject("PartDesign::LinearPattern", "LinearPattern013")
linearpattern14.Originals = [groove]
linearpattern14.Direction = (datumline13, [""])
linearpattern14.Mode = "offset"
linearpattern14.Offset = 482.696464
linearpattern14.Occurrences = 2
body2.Tip = linearpattern14
doc.recompute()

datumline14 = body2.newObject("PartDesign::Line", "DatumLine013")
datumline14.Placement = App.Placement(V(0, 0, 0), App.Rotation(V(0, 0, 1), V(-0.29271055, 0.956201095, 0)))
linearpattern15 = body2.newObject("PartDesign::LinearPattern", "LinearPattern014")
linearpattern15.Originals = [groove]
linearpattern15.Direction = (datumline14, [""])
linearpattern15.Mode = "offset"
linearpattern15.Offset = 322.4996
linearpattern15.Occurrences = 2
body2.Tip = linearpattern15
doc.recompute()

datumline15 = body2.newObject("PartDesign::Line", "DatumLine014")
datumline15.Placement = App.Placement(V(0, 0, 0), App.Rotation(V(0, 0, 1), V(-0.203490433, 0.979076934, 0)))
linearpattern16 = body2.newObject("PartDesign::LinearPattern", "LinearPattern015")
linearpattern16.Originals = [groove]
linearpattern16.Direction = (datumline15, [""])
linearpattern16.Mode = "offset"
linearpattern16.Offset = 292.44089
linearpattern16.Occurrences = 2
body2.Tip = linearpattern16
doc.recompute()

datumline16 = body2.newObject("PartDesign::Line", "DatumLine015")
datumline16.Placement = App.Placement(V(0, 0, 0), App.Rotation(V(0, 0, 1), V(0.899545038, 0.436828026, 0)))
linearpattern17 = body2.newObject("PartDesign::LinearPattern", "LinearPattern016")
linearpattern17.Originals = [groove]
linearpattern17.Direction = (datumline16, [""])
linearpattern17.Mode = "offset"
linearpattern17.Offset = Q("1.625 in")
linearpattern17.Occurrences = 2
body2.Tip = linearpattern17
doc.recompute()

datumline17 = body2.newObject("PartDesign::Line", "DatumLine016")
datumline17.Placement = App.Placement(V(0, 0, 0), App.Rotation(V(0, 0, 1), V(-0.270463198, 0.962730315, 0)))
linearpattern18 = body2.newObject("PartDesign::LinearPattern", "LinearPattern017")
linearpattern18.Originals = [groove]
linearpattern18.Direction = (datumline17, [""])
linearpattern18.Mode = "offset"
linearpattern18.Offset = 232.858255
linearpattern18.Occurrences = 2
body2.Tip = linearpattern18
doc.recompute()

datumline18 = body2.newObject("PartDesign::Line", "DatumLine017")
datumline18.Placement = App.Placement(V(0, 0, 0), App.Rotation(V(0, 0, 1), V(-0.436828026, 0.899545038, 0)))
linearpattern19 = body2.newObject("PartDesign::LinearPattern", "LinearPattern018")
linearpattern19.Originals = [groove]
linearpattern19.Direction = (datumline18, [""])
linearpattern19.Mode = "offset"
linearpattern19.Offset = 229.170987
linearpattern19.Occurrences = 2
body2.Tip = linearpattern19

sketch5 = body2.newObject("Sketcher::SketchObject", "Sketch004")
sketch5.AttachmentSupport = (doc.getObject("XY_Plane001"), [""])
sketch5.MapMode = "FlatFace"
sketch5.AttachmentOffset = App.Placement(V(0, 0, -2.5 * 25.4), App.Rotation())
sketch5.addGeometry([
    Part.LineSegment(V(-122, -844, 0), V(-122, -873, 0)),
    Part.LineSegment(V(-122, -873, 0), V(633, -873, 0)),
    Part.LineSegment(V(633, -873, 0), V(633, -844, 0)),
    Part.LineSegment(V(633, -844, 0), V(-122, -844, 0)),
], False)
sketch5.addConstraint([
    Sketcher.Constraint("Coincident", 0, 2, 1, 1),
    Sketcher.Constraint("Coincident", 1, 2, 2, 1),
    Sketcher.Constraint("Coincident", 2, 2, 3, 1),
    Sketcher.Constraint("Coincident", 3, 2, 0, 1),
    Sketcher.Constraint("Vertical", 0),
    Sketcher.Constraint("Horizontal", 1),
    Sketcher.Constraint("Vertical", 2),
    Sketcher.Constraint("Horizontal", 3),
    Sketcher.Constraint("DistanceY", 0, 2, 0, 1, Q("1.125 in")),
    Sketcher.Constraint("DistanceX", 0, 2, -1, 1, 121.937701),
    Sketcher.Constraint("DistanceX", 1, 1, 1, 2, 754.968668),
    Sketcher.Constraint("DistanceY", 0, 2, -1, 1, 872.634634),
])
pocket2 = body2.newObject("PartDesign::Pocket", "Pocket001")
pocket2.Profile = sketch5
pocket2.Type = "ThroughAll"

sketch6 = body2.newObject("Sketcher::SketchObject", "Sketch005")
sketch6.AttachmentSupport = (doc.getObject("XY_Plane001"), [""])
sketch6.MapMode = "FlatFace"
sketch6.AttachmentOffset = App.Placement(V(0, 0, -2.5 * 25.4), App.Rotation())
sketch6.addGeometry([
    Part.Circle(V(-23.9, -272.6, 0), V(0, 0, 1), 3.4),
    Part.Circle(V(534.9, -272.6, 0), V(0, 0, 1), 3.4),
    Part.Circle(V(592.1, -780.6, 0), V(0, 0, 1), 3.4),
    Part.Circle(V(-81, -780.6, 0), V(0, 0, 1), 3.4),
], False)
sketch6.addConstraint([
    Sketcher.Constraint("Equal", 0, 1),
    Sketcher.Constraint("Equal", 1, 2),
    Sketcher.Constraint("Equal", 2, 3),
    Sketcher.Constraint("Horizontal", 0, 3, 1, 3),
    Sketcher.Constraint("Horizontal", 2, 3, 3, 3),
    Sketcher.Constraint("DistanceX", 0, 3, 1, 3, Q("22 in")),
    Sketcher.Constraint("DistanceY", 2, 3, 1, 3, Q("20 in")),
    Sketcher.Constraint("DistanceX", 3, 3, 2, 3, Q("26.5 in")),
    Sketcher.Constraint("DistanceX", 1, 3, 2, 3, Q("2.25 in")),
    Sketcher.Constraint("Diameter", 0, 6.747002),
    Sketcher.Constraint("DistanceX", 0, 3, -1, 1, 23.853367),
    Sketcher.Constraint("DistanceY", 0, 3, -1, 1, 272.559634),
])
doc.recompute()
hole = body2.newObject("PartDesign::Hole", "Hole")
hole.Profile = sketch6
hole.ThreadType = "None"
hole.Diameter = 6.747002
hole.DepthType = "ThroughAll"

sketch7 = body2.newObject("Sketcher::SketchObject", "Sketch006")
sketch7.AttachmentSupport = (doc.getObject("XY_Plane001"), [""])
sketch7.MapMode = "FlatFace"
sketch7.AttachmentOffset = App.Placement(V(0, 0, -2.5 * 25.4), App.Rotation())
sketch7.addGeometry([
    Part.LineSegment(V(561, -234, 0), V(548, -196, 0)),
    Part.LineSegment(V(548, -196, 0), V(-37, -196, 0)),
    Part.LineSegment(V(-37, -196, 0), V(-50, -234, 0)),
    Part.LineSegment(V(-50, -234, 0), V(561, -234, 0)),
], False)
sketch7.addConstraint([
    Sketcher.Constraint("Coincident", 0, 2, 1, 1),
    Sketcher.Constraint("Coincident", 1, 2, 2, 1),
    Sketcher.Constraint("Coincident", 2, 2, 3, 1),
    Sketcher.Constraint("Coincident", 3, 2, 0, 1),
    Sketcher.Constraint("Horizontal", 1),
    Sketcher.Constraint("Horizontal", 3),
    Sketcher.Constraint("Equal", 0, 2),
    Sketcher.Constraint("DistanceY", 2, 2, 1, 2, Q("1.5 in")),
    Sketcher.Constraint("DistanceX", 1, 2, 1, 1, 584.5571),
    Sketcher.Constraint("DistanceX", 3, 1, 3, 2, 610.294728),
    Sketcher.Constraint("DistanceX", 2, 2, -1, 1, 49.600731),
    Sketcher.Constraint("DistanceY", 0, 2, -1, 1, 196.359634),
])
pocket3 = body2.newObject("PartDesign::Pocket", "Pocket002")
pocket3.Profile = sketch7
pocket3.Type = "ThroughAll"
doc.recompute()

fillet2 = body2.newObject("PartDesign::Fillet", "Fillet001")
fillet2.Base = (pocket3, edges_at(pocket3, [
    (633.031, -448.624, -66.675),
    (-121.938, -448.624, -66.675),
    (-121.938, -844.06, -66.675),
    (633.031, -844.06, -66.675),
    (560.694, -234.46, -66.675),
    (-49.601, -234.46, -66.675),
]))
fillet2.Radius = Q("0.5 in")
body.Visibility = False

doc.recompute()
